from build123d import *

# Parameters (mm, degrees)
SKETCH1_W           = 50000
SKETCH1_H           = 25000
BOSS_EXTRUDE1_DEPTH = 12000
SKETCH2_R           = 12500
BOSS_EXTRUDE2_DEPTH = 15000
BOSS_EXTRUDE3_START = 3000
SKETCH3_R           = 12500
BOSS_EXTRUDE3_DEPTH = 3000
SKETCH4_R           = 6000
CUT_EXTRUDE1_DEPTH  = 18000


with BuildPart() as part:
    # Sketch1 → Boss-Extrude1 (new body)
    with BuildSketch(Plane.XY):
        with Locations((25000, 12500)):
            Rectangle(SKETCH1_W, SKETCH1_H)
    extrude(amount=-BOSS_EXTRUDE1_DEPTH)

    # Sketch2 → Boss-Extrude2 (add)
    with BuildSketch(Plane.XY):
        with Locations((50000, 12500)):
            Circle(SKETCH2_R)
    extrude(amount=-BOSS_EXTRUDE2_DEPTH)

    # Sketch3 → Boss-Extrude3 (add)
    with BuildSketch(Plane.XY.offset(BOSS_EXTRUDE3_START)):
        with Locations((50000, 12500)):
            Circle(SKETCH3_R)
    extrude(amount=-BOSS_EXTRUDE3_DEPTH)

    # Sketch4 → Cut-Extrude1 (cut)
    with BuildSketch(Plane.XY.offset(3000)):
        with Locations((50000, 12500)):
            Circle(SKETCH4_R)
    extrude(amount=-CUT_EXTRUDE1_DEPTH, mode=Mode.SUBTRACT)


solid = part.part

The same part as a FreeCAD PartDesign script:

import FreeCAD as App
import Part
import Sketcher
Q = App.Units.Quantity


def add_polygon(sketch, points):
    """Adds a closed chain of lines whose ends are joined by coincident constraints."""
    first, n = sketch.GeometryCount, len(points)
    for a, b in zip(points, points[1:] + points[:1]):
        sketch.addGeometry(Part.LineSegment(App.Vector(*a, 0), App.Vector(*b, 0)), False)
    for i in range(n):
        sketch.addConstraint(Sketcher.Constraint("Coincident", first + i, 2, first + (i + 1) % n, 1))

doc = App.newDocument("Part")
body = doc.addObject("PartDesign::Body", "Body")

# Sketch on XY plane
sketch1 = body.newObject("Sketcher::SketchObject", "Sketch")
sketch1.AttachmentSupport = (doc.getObject("XY_Plane"), [""])
sketch1.MapMode = "FlatFace"
add_polygon(sketch1, [(0, 25000), (0, 0), (50000, 0), (50000, 25000)])  # lines 0-3
sketch1.addConstraint([
    Sketcher.Constraint("Vertical", 0),
    Sketcher.Constraint("Horizontal", 1),
    Sketcher.Constraint("Vertical", 2),
    Sketcher.Constraint("Horizontal", 3),
    Sketcher.Constraint("Coincident", 0, 2, -1, 1),
    Sketcher.Constraint("DistanceX", 1, 1, 1, 2, Q("50000 mm")),
    Sketcher.Constraint("DistanceY", 0, 2, 0, 1, Q("25000 mm")),
])
pad1 = body.newObject("PartDesign::Pad", "Pad")
pad1.Profile = sketch1
pad1.Length = 12000
pad1.Reversed = True

# Sketch on XY plane
sketch2 = body.newObject("Sketcher::SketchObject", "Sketch001")
sketch2.AttachmentSupport = (doc.getObject("XY_Plane"), [""])
sketch2.MapMode = "FlatFace"
sketch2.addGeometry(Part.Circle(App.Vector(50000, 12500, 0), App.Vector(0, 0, 1), 12500), False)
sketch2.addConstraint([
    Sketcher.Constraint("Diameter", 0, Q("25000 mm")),
    Sketcher.Constraint("DistanceX", -1, 1, 0, 3, Q("50000 mm")),
    Sketcher.Constraint("DistanceY", -1, 1, 0, 3, Q("12500 mm")),
])
pad2 = body.newObject("PartDesign::Pad", "Pad001")
pad2.Profile = sketch2
pad2.Length = 15000
pad2.Reversed = True

# Sketch on XY plane
sketch3 = body.newObject("Sketcher::SketchObject", "Sketch002")
sketch3.AttachmentSupport = (doc.getObject("XY_Plane"), [""])
sketch3.MapMode = "FlatFace"
sketch3.AttachmentOffset = App.Placement(App.Vector(0, 0, 3000), App.Rotation())
sketch3.addGeometry(Part.Circle(App.Vector(50000, 12500, 0), App.Vector(0, 0, 1), 12500), False)
sketch3.addConstraint([
    Sketcher.Constraint("Diameter", 0, Q("25000 mm")),
    Sketcher.Constraint("DistanceX", -1, 1, 0, 3, Q("50000 mm")),
    Sketcher.Constraint("DistanceY", -1, 1, 0, 3, Q("12500 mm")),
])
pad3 = body.newObject("PartDesign::Pad", "Pad002")
pad3.Profile = sketch3
pad3.Length = 3000
pad3.Reversed = True

# Sketch on XY plane
sketch4 = body.newObject("Sketcher::SketchObject", "Sketch003")
sketch4.AttachmentSupport = (doc.getObject("XY_Plane"), [""])
sketch4.MapMode = "FlatFace"
sketch4.AttachmentOffset = App.Placement(App.Vector(0, 0, 3000), App.Rotation())
sketch4.addGeometry(Part.Circle(App.Vector(50000, 12500, 0), App.Vector(0, 0, 1), 6000), False)
sketch4.addConstraint([
    Sketcher.Constraint("Diameter", 0, Q("12000 mm")),
    Sketcher.Constraint("DistanceX", -1, 1, 0, 3, Q("50000 mm")),
    Sketcher.Constraint("DistanceY", -1, 1, 0, 3, Q("12500 mm")),
])
pocket1 = body.newObject("PartDesign::Pocket", "Pocket")
pocket1.Profile = sketch4
pocket1.Length = 18000

doc.recompute()
